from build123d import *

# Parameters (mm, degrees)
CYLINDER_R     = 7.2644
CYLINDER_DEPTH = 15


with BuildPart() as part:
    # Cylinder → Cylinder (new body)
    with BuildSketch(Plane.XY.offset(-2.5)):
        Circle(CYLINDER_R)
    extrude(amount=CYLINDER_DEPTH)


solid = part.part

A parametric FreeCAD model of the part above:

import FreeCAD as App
import Part
import Sketcher
from FreeCAD import Vector
Q = App.Units.Quantity

doc = App.newDocument("Part")
body = doc.addObject("PartDesign::Body", "Body")

sketch1 = doc.addObject("Sketcher::SketchObject", "Sketch")
body.addObject(sketch1)
sketch1.AttachmentSupport = (doc.XY_Plane, [""])
sketch1.MapMode = "FlatFace"
sketch1.AttachmentOffset = App.Placement(Vector(0, 0, -2.5), App.Rotation())
sketch1.addGeometry(Part.Circle(Vector(0, 0, 0), Vector(0, 0, 1), 7), False)
sketch1.addConstraint([
    Sketcher.Constraint("Coincident", 0, 3, -1, 1),
    Sketcher.Constraint("Diameter", 0, Q("14.5288 mm")),
])
pad1 = doc.addObject("PartDesign::Pad", "Pad")
body.addObject(pad1)
pad1.Profile = sketch1
pad1.Length = 15

doc.recompute()
